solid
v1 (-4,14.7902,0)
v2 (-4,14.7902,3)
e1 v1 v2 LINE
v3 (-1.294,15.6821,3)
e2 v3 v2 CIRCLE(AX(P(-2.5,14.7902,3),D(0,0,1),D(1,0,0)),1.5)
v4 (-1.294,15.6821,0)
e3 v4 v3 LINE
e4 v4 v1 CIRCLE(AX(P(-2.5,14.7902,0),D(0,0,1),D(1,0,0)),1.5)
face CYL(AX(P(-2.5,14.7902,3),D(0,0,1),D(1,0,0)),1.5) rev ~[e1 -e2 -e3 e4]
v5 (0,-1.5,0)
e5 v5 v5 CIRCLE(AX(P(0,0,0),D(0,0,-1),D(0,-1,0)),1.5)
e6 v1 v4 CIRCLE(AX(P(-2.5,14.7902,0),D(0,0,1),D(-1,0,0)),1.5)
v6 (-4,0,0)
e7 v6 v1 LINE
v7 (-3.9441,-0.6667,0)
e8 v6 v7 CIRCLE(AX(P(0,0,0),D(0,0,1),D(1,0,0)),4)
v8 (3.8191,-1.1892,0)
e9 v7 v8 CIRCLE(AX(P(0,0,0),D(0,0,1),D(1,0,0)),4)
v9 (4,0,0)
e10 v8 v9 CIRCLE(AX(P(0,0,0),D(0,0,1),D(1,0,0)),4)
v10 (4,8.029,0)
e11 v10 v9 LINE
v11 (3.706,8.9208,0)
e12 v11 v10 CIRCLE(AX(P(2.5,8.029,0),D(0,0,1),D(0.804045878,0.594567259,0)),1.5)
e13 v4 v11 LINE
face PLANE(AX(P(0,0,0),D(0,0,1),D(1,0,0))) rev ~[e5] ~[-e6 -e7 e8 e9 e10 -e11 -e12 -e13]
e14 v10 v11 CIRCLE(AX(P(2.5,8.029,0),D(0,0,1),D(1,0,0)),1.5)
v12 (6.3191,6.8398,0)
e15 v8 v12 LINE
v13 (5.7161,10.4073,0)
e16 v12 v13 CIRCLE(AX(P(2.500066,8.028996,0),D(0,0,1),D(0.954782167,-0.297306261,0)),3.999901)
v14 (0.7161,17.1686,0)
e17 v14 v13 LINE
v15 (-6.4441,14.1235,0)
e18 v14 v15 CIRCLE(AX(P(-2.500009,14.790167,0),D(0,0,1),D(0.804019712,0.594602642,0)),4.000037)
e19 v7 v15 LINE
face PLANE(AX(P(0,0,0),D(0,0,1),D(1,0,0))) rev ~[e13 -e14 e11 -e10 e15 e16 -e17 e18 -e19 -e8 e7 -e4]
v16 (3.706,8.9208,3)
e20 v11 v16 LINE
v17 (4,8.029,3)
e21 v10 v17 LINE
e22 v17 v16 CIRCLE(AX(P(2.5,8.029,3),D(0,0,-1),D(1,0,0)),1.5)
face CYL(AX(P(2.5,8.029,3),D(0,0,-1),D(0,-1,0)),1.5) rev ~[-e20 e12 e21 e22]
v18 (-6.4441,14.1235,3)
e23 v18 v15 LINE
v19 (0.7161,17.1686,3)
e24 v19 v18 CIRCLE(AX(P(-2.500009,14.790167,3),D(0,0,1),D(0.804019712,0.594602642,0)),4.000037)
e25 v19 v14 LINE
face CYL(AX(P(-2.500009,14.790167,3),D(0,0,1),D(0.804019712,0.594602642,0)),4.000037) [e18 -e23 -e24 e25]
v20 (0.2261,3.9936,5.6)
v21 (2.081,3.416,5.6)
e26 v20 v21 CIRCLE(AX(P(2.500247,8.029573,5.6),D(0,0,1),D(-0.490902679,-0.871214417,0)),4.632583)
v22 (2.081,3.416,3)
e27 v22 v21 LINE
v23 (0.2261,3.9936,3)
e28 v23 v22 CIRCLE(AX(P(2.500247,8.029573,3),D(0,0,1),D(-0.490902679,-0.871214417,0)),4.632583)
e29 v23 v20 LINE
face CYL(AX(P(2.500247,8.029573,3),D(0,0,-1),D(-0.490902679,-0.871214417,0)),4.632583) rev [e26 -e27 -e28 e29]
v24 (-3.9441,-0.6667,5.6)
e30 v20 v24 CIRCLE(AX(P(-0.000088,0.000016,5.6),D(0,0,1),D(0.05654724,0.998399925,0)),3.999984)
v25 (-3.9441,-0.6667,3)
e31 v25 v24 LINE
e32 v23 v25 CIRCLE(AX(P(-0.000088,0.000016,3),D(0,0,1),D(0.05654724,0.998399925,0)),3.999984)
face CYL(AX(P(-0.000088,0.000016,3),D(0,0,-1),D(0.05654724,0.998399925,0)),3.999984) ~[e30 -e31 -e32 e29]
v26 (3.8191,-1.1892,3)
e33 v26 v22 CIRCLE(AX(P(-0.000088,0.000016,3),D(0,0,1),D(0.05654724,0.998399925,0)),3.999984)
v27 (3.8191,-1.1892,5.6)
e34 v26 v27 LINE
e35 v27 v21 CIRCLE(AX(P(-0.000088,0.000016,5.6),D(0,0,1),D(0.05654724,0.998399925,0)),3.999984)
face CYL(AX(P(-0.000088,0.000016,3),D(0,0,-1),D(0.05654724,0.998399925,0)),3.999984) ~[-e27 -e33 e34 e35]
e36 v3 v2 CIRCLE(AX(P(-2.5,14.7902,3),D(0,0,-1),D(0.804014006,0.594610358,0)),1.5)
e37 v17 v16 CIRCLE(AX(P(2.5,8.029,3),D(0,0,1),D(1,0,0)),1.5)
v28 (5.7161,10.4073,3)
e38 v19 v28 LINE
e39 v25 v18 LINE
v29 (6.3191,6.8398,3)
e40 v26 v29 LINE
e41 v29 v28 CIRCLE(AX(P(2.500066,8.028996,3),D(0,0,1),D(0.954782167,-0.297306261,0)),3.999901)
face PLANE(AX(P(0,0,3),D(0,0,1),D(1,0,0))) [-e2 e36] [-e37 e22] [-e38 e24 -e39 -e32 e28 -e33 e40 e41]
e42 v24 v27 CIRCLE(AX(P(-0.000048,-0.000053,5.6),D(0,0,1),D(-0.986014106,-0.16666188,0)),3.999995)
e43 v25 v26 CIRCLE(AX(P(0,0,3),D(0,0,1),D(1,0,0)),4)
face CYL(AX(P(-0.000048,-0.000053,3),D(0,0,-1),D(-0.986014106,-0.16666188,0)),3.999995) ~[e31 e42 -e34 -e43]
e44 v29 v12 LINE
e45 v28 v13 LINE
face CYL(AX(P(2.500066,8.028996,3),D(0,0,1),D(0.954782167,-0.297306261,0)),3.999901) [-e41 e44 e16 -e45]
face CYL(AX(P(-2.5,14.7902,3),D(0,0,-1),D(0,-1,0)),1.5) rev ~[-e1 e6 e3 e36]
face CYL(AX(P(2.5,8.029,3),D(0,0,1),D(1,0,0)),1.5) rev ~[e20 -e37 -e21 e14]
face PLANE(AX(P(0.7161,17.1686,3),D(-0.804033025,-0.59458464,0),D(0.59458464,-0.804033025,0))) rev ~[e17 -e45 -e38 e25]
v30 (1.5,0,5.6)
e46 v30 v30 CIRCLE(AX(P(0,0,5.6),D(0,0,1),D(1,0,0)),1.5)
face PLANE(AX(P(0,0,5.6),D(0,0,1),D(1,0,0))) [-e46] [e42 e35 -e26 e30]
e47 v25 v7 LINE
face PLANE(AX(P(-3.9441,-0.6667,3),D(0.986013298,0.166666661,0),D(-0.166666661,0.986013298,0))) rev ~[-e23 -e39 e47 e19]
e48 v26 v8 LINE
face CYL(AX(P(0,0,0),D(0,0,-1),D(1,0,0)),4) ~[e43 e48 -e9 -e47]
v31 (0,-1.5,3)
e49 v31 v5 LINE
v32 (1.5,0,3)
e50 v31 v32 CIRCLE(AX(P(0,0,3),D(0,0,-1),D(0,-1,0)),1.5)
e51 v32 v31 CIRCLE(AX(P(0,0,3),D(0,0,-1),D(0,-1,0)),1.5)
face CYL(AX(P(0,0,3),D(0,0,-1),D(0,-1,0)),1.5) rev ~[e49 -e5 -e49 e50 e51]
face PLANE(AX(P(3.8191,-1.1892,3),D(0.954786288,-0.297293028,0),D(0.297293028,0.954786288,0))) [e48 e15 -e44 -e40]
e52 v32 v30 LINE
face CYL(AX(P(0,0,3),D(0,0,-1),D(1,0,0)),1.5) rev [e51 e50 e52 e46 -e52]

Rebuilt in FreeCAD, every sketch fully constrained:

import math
import FreeCAD as App
import Part
import Sketcher

V = App.Vector
Q = App.Units.Quantity

doc = App.newDocument("Part")
params = doc.addObject("Spreadsheet::Sheet", "Params")
for row, (alias, value) in enumerate([
    ("sketch1_radius", "4 mm"),
    ("sketch1_radius2", "1.5 mm"),
    ("pad1_length", "3 mm"),
    ("sketch2_diameter", "3 mm"),
    ("hole_diameter", "3 mm"),
    ("sketch3_radius", "4 mm"),
    ("sketch3_length", "15 mm"),
    ("pad2_length", "3 mm"),
    ("sketch4_diameter", "3 mm"),
    ("sketch4_radius", "4 mm"),
    ("pad3_length", "2.6 mm"),
], start=1):
    params.set(f"A{row}", alias)
    params.set(f"B{row}", "=" + value)
    params.setAlias(f"B{row}", alias)

body = doc.addObject("PartDesign::Body", "Body")

sketch1 = body.newObject("Sketcher::SketchObject", "Sketch")
sketch1.AttachmentSupport = (doc.getObject("XY_Plane"), [""])
sketch1.MapMode = "FlatFace"
sketch1.addGeometry([
    Part.ArcOfCircle(Part.Circle(V(0, 0, 0), V(0, 0, 1), 4), math.radians(180), math.radians(360)),
    Part.LineSegment(V(4, 0, 0), V(4, 8, 0)),
    Part.ArcOfCircle(Part.Circle(V(2.5, 8, 0), V(0, 0, 1), 1.5), math.radians(0), math.radians(36)),
    Part.LineSegment(V(3.7, 8.9, 0), V(-1.3, 15.7, 0)),
    Part.ArcOfCircle(Part.Circle(V(-2.5, 14.8, 0), V(0, 0, 1), 1.5), math.radians(36), math.radians(180)),
    Part.LineSegment(V(-4, 14.8, 0), V(-4, 0, 0)),
], False)
sketch1.addConstraint([
    Sketcher.Constraint("Tangent", 0, 2, 1, 1),
    Sketcher.Constraint("Tangent", 1, 2, 2, 1),
    Sketcher.Constraint("Tangent", 2, 2, 3, 1),
    Sketcher.Constraint("Tangent", 3, 2, 4, 1),
    Sketcher.Constraint("Tangent", 4, 2, 5, 1),
    Sketcher.Constraint("Tangent", 5, 2, 0, 1),
    Sketcher.Constraint("Vertical", 1),
    Sketcher.Constraint("Vertical", 5),
    Sketcher.Constraint("Coincident", 0, 3, -1, 1),
    Sketcher.Constraint("Equal", 2, 4),
    Sketcher.Constraint("Radius", 0, Q("4 mm")),
    Sketcher.Constraint("Radius", 2, Q("1.5 mm")),
    Sketcher.Constraint("DistanceY", 1, 1, 1, 2, Q("8.029 mm")),
    Sketcher.Constraint("DistanceY", 5, 2, 5, 1, Q("14.7902 mm")),
])
sketch1.setExpression("Constraints[10]", "Params.sketch1_radius")
sketch1.setExpression("Constraints[11]", "Params.sketch1_radius2")
pad1 = body.newObject("PartDesign::Pad", "Pad")
pad1.Profile = sketch1
pad1.setExpression("Length", "Params.pad1_length")

sketch2 = body.newObject("Sketcher::SketchObject", "Sketch001")
sketch2.AttachmentSupport = (doc.getObject("XY_Plane"), [""])
sketch2.MapMode = "FlatFace"
sketch2.AttachmentOffset = App.Placement(V(0, 0, 3), App.Rotation())
sketch2.addGeometry([
    Part.Circle(V(2.5, 8, 0), V(0, 0, 1), 1.5),
    Part.Circle(V(-2.5, 14.8, 0), V(0, 0, 1), 1.5),
    Part.Circle(V(0, 0, 0), V(0, 0, 1), 1.5),
], False)
sketch2.addConstraint([
    Sketcher.Constraint("Coincident", 2, 3, -1, 1),
    Sketcher.Constraint("Equal", 0, 1),
    Sketcher.Constraint("Equal", 1, 2),
    Sketcher.Constraint("Diameter", 0, Q("3 mm")),
    Sketcher.Constraint("DistanceX", 1, 3, 0, 3, Q("5 mm")),
    Sketcher.Constraint("DistanceX", -1, 1, 0, 3, Q("2.5 mm")),
    Sketcher.Constraint("DistanceY", -1, 1, 0, 3, Q("8.029 mm")),
    Sketcher.Constraint("DistanceY", -1, 1, 1, 3, Q("14.7902 mm")),
])
sketch2.setExpression("Constraints[3]", "Params.sketch2_diameter")
doc.recompute()
hole = body.newObject("PartDesign::Hole", "Hole")
hole.Profile = sketch2
hole.ThreadType = "None"
hole.setExpression("Diameter", "Params.hole_diameter")
hole.DepthType = "ThroughAll"

sketch3 = body.newObject("Sketcher::SketchObject", "Sketch002")
sketch3.AttachmentSupport = (doc.getObject("XY_Plane"), [""])
sketch3.MapMode = "FlatFace"
sketch3.AttachmentOffset = App.Placement(V(0, 0, 3), App.Rotation())
sketch3.addGeometry([
    Part.ArcOfCircle(Part.Circle(V(-2.5, 14.8, 0), V(0, 0, 1), 1.5), math.radians(36), math.radians(180)),
    Part.LineSegment(V(-1.3, 15.7, 0), V(3.7, 8.9, 0)),
    Part.ArcOfCircle(Part.Circle(V(2.5, 8, 0), V(0, 0, 1), 1.5), math.radians(0), math.radians(36)),
    Part.LineSegment(V(4, 8, 0), V(4, 0, 0)),
    Part.ArcOfCircle(Part.Circle(V(0, 0, 0), V(0, 0, 1), 4), math.radians(-17.3), math.radians(0)),
    Part.LineSegment(V(3.8, -1.2, 0), V(6.3, 6.8, 0)),
    Part.ArcOfCircle(Part.Circle(V(2.5, 8, 0), V(0, 0, 1), 4), math.radians(-17), math.radians(36)),
    Part.LineSegment(V(5.7, 10.4, 0), V(0.7, 17.2, 0)),
    Part.ArcOfCircle(Part.Circle(V(-2.5, 14.8, 0), V(0, 0, 1), 4), math.radians(36), math.radians(190)),
    Part.LineSegment(V(-6.4, 14.1, 0), V(-3.9, -0.7, 0)),
    Part.ArcOfCircle(Part.Circle(V(0, 0, 0), V(0, 0, 1), 4), math.radians(180), math.radians(189.59)),
    Part.LineSegment(V(-4, 0, 0), V(-4, 14.8, 0)),
], False)
sketch3.addConstraint([
    Sketcher.Constraint("Tangent", 0, 1, 1, 1),
    Sketcher.Constraint("Tangent", 1, 2, 2, 2),
    Sketcher.Constraint("Tangent", 2, 1, 3, 1),
    Sketcher.Constraint("Tangent", 3, 2, 4, 2),
    Sketcher.Constraint("Tangent", 4, 1, 5, 1),
    Sketcher.Constraint("Tangent", 5, 2, 6, 1),
    Sketcher.Constraint("Tangent", 6, 2, 7, 1),
    Sketcher.Constraint("Tangent", 7, 2, 8, 1),
    Sketcher.Constraint("Tangent", 8, 2, 9, 1),
    Sketcher.Constraint("Tangent", 9, 2, 10, 2),
    Sketcher.Constraint("Tangent", 10, 1, 11, 1),
    Sketcher.Constraint("Tangent", 11, 2, 0, 2),
    Sketcher.Constraint("Vertical", 3),
    Sketcher.Constraint("Vertical", 11),
    Sketcher.Constraint("Coincident", 4, 3, -1, 1),
    Sketcher.Constraint("Coincident", 10, 3, -1, 1),
    Sketcher.Constraint("Coincident", 6, 3, 2, 3),
    Sketcher.Constraint("Coincident", 8, 3, 0, 3),
    Sketcher.Constraint("Equal", 0, 2),
    Sketcher.Constraint("Equal", 4, 6),
    Sketcher.Constraint("Equal", 6, 8),
    Sketcher.Constraint("Equal", 8, 10),
    Sketcher.Constraint("Equal", 1, 5),
    Sketcher.Constraint("Radius", 4, Q("4 mm")),
    Sketcher.Constraint("DistanceX", 0, 3, -1, 1, Q("2.5 mm")),
    Sketcher.Constraint("Distance", 9, Q("15 mm")),
])
sketch3.setExpression("Constraints[23]", "Params.sketch3_radius")
sketch3.setExpression("Constraints[25]", "Params.sketch3_length")
pad2 = body.newObject("PartDesign::Pad", "Pad001")
pad2.Profile = sketch3
pad2.setExpression("Length", "Params.pad2_length")
pad2.Reversed = True

sketch4 = body.newObject("Sketcher::SketchObject", "Sketch003")
sketch4.AttachmentSupport = (doc.getObject("XY_Plane"), [""])
sketch4.MapMode = "FlatFace"
sketch4.AttachmentOffset = App.Placement(V(0, 0, 3), App.Rotation())
sketch4.addGeometry([
    Part.ArcOfCircle(Part.Circle(V(0, 0, 0), V(0, 0, 1), 4), math.radians(87), math.radians(190)),
    Part.ArcOfCircle(Part.Circle(V(0, 0, 0), V(0, 0, 1), 4), math.radians(-170), math.radians(-17)),
    Part.ArcOfCircle(Part.Circle(V(0, 0, 0), V(0, 0, 1), 4), math.radians(-17), math.radians(59)),
    Part.ArcOfCircle(Part.Circle(V(2.5, 8, 0), V(0, 0, 1), 4.6), math.radians(-119), math.radians(-95)),
    Part.Circle(V(0, 0, 0), V(0, 0, 1), 1.5),
], False)
sketch4.addConstraint([
    Sketcher.Constraint("Tangent", 0, 2, 1, 1),
    Sketcher.Constraint("Tangent", 1, 2, 2, 1),
    Sketcher.Constraint("Coincident", 2, 2, 3, 2),
    Sketcher.Constraint("Coincident", 3, 1, 0, 1),
    Sketcher.Constraint("Coincident", 0, 3, -1, 1),
    Sketcher.Constraint("Coincident", 2, 3, -1, 1),
    Sketcher.Constraint("Coincident", 4, 3, -1, 1),
    Sketcher.Constraint("Diameter", 4, Q("3 mm")),
    Sketcher.Constraint("Radius", 0, Q("4 mm")),
    Sketcher.Constraint("Radius", 3, Q("4.632 mm")),
    Sketcher.Constraint("DistanceX", -1, 1, 3, 3, Q("2.5 mm")),
    Sketcher.Constraint("DistanceY", -1, 1, 3, 3, Q("8.029 mm")),
    Sketcher.Constraint("DistanceX", 0, 2, -1, 1, Q("3.944 mm")),
    Sketcher.Constraint("DistanceX", -1, 1, 1, 2, Q("3.8191 mm")),
])
sketch4.setExpression("Constraints[7]", "Params.sketch4_diameter")
sketch4.setExpression("Constraints[8]", "Params.sketch4_radius")
pad3 = body.newObject("PartDesign::Pad", "Pad002")
pad3.Profile = sketch4
pad3.setExpression("Length", "Params.pad3_length")

doc.recompute()
